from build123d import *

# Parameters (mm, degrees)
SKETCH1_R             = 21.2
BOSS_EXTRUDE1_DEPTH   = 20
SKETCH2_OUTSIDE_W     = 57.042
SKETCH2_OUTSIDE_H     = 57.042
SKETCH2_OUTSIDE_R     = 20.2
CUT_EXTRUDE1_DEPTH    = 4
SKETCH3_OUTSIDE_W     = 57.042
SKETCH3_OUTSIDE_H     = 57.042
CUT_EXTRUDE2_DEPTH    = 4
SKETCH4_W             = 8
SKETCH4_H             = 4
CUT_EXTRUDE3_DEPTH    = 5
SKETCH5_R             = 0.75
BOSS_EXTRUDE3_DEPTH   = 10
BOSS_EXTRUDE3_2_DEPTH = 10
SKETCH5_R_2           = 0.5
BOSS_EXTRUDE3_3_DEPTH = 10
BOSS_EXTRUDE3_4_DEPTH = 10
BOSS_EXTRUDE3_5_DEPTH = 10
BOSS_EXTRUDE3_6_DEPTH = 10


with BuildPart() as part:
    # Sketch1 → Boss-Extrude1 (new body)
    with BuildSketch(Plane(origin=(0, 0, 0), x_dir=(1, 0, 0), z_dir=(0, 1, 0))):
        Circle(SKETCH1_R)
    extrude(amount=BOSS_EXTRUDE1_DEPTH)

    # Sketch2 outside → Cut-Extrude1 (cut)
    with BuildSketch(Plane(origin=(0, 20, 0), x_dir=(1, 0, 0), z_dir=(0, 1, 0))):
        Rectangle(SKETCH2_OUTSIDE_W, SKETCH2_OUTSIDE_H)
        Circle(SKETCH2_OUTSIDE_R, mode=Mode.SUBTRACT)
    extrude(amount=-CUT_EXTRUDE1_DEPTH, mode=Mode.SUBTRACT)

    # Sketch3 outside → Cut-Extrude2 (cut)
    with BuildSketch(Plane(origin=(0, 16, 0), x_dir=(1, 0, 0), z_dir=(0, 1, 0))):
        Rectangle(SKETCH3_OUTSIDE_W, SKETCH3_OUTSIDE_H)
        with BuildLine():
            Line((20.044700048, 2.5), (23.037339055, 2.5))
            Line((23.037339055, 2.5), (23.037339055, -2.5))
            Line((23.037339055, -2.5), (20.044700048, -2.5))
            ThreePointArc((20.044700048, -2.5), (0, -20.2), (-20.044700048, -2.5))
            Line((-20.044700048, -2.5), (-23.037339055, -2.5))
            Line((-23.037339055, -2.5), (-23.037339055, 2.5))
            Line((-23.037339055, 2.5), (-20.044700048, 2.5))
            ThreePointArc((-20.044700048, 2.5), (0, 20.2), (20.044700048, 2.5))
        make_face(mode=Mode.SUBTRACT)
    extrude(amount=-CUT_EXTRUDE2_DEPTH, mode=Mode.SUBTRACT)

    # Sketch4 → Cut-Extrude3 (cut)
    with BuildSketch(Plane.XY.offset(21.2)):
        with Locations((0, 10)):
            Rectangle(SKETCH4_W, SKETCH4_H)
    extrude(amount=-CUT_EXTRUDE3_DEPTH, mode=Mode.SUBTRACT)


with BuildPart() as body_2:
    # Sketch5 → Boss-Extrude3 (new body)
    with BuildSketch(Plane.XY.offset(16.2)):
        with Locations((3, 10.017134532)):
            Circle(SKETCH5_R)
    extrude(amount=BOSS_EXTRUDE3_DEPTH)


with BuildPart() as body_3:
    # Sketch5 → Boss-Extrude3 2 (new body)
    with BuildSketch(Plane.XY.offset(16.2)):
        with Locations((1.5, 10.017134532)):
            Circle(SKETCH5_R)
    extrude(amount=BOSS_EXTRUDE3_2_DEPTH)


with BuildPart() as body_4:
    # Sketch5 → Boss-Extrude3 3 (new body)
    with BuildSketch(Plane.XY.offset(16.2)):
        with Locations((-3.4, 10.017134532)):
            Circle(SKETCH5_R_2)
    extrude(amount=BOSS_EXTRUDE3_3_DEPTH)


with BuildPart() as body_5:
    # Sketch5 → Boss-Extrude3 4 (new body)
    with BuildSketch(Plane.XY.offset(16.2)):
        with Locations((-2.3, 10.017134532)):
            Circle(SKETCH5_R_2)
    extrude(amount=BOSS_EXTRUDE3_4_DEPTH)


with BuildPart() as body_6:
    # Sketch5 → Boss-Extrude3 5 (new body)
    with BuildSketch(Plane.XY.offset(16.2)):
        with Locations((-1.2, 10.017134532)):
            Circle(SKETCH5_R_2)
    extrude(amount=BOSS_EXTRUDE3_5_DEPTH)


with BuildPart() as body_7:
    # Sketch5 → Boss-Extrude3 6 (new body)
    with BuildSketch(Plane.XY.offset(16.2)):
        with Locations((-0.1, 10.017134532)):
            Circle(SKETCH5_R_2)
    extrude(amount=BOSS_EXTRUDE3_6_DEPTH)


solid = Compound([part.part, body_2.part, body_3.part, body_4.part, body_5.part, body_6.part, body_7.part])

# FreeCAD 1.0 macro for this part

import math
import FreeCAD as App
import Part
import Sketcher

V = App.Vector


def add_polygon(sketch, points):
    """Adds a closed chain of lines whose ends are joined by coincident constraints."""
    first, n = sketch.GeometryCount, len(points)
    for a, b in zip(points, points[1:] + points[:1]):
        sketch.addGeometry(Part.LineSegment(App.Vector(*a, 0), App.Vector(*b, 0)), False)
    for i in range(n):
        sketch.addConstraint(Sketcher.Constraint("Coincident", first + i, 2, first + (i + 1) % n, 1))

doc = App.newDocument("Part")
body = doc.addObject("PartDesign::Body", "Body")

# Sketch on XZ plane
sketch1 = body.newObject("Sketcher::SketchObject", "Sketch")
sketch1.AttachmentSupport = (doc.getObject("XZ_Plane"), [""])
sketch1.MapMode = "FlatFace"
sketch1.addGeometry(Part.Circle(V(0, 0, 0), V(0, 0, 1), 21), False)
sketch1.addConstraint([
    Sketcher.Constraint("Coincident", 0, 3, -1, 1),
    Sketcher.Constraint("Diameter", 0, 42.4),
])
pad1 = body.newObject("PartDesign::Pad", "Pad")
pad1.Profile = sketch1
pad1.Length = 20
pad1.Reversed = True

# Sketch on XZ plane
sketch2 = body.newObject("Sketcher::SketchObject", "Sketch001")
sketch2.AttachmentSupport = (doc.getObject("XZ_Plane"), [""])
sketch2.MapMode = "FlatFace"
sketch2.AttachmentOffset = App.Placement(V(0, 0, -20), App.Rotation())
add_polygon(sketch2, [(-29, -29), (-29, 29), (29, 29), (29, -29)])  # lines 0-3
sketch2.addGeometry(Part.Circle(V(0, 0, 0), V(0, 0, 1), 20), False)  # 4
sketch2.addConstraint([
    Sketcher.Constraint("Vertical", 0),
    Sketcher.Constraint("Horizontal", 1),
    Sketcher.Constraint("Vertical", 2),
    Sketcher.Constraint("Horizontal", 3),
    Sketcher.Constraint("Coincident", 4, 3, -1, 1),
    Sketcher.Constraint("Symmetric", 0, 2, 2, 2, -1, 1),
    Sketcher.Constraint("Equal", 3, 0),
    Sketcher.Constraint("Diameter", 4, 40.4),
    Sketcher.Constraint("DistanceX", 1, 1, 1, 2, 57.042),
])
pocket1 = body.newObject("PartDesign::Pocket", "Pocket")
pocket1.Profile = sketch2
pocket1.Length = 4
pocket1.Reversed = True

# Sketch on XZ plane
sketch3 = body.newObject("Sketcher::SketchObject", "Sketch002")
sketch3.AttachmentSupport = (doc.getObject("XZ_Plane"), [""])
sketch3.MapMode = "FlatFace"
sketch3.AttachmentOffset = App.Placement(V(0, 0, -16), App.Rotation())
add_polygon(sketch3, [(-28.5, -28.5), (-28.5, 28.5), (28.5, 28.5), (28.5, -28.5)])  # lines 0-3
sketch3.addGeometry(Part.ArcOfCircle(Part.Circle(V(0, 0, 0), V(0, 0, 1), 20.2), math.radians(-173), math.radians(-7)), False)  # 4
sketch3.addGeometry(Part.LineSegment(V(20, -2.5, 0), V(23, -2.5, 0)), False)  # 5
sketch3.addGeometry(Part.LineSegment(V(23, -2.5, 0), V(23, 2.5, 0)), False)  # 6
sketch3.addGeometry(Part.LineSegment(V(23, 2.5, 0), V(20, 2.5, 0)), False)  # 7
sketch3.addGeometry(Part.ArcOfCircle(Part.Circle(V(0, 0, 0), V(0, 0, 1), 20.2), math.radians(7), math.radians(173)), False)  # 8
sketch3.addGeometry(Part.LineSegment(V(-20, 2.5, 0), V(-23, 2.5, 0)), False)  # 9
sketch3.addGeometry(Part.LineSegment(V(-23, 2.5, 0), V(-23, -2.5, 0)), False)  # 10
sketch3.addGeometry(Part.LineSegment(V(-23, -2.5, 0), V(-20, -2.5, 0)), False)  # 11
sketch3.addConstraint([
    Sketcher.Constraint("Coincident", 4, 2, 5, 1),
    Sketcher.Constraint("Coincident", 5, 2, 6, 1),
    Sketcher.Constraint("Coincident", 6, 2, 7, 1),
    Sketcher.Constraint("Coincident", 7, 2, 8, 1),
    Sketcher.Constraint("Coincident", 8, 2, 9, 1),
    Sketcher.Constraint("Coincident", 9, 2, 10, 1),
    Sketcher.Constraint("Coincident", 10, 2, 11, 1),
    Sketcher.Constraint("Coincident", 11, 2, 4, 1),
    Sketcher.Constraint("Vertical", 0),
    Sketcher.Constraint("Horizontal", 1),
    Sketcher.Constraint("Vertical", 2),
    Sketcher.Constraint("Horizontal", 3),
    Sketcher.Constraint("Horizontal", 5),
    Sketcher.Constraint("Vertical", 6),
    Sketcher.Constraint("Horizontal", 7),
    Sketcher.Constraint("Horizontal", 9),
    Sketcher.Constraint("Vertical", 10),
    Sketcher.Constraint("Horizontal", 11),
    Sketcher.Constraint("Coincident", 4, 3, -1, 1),
    Sketcher.Constraint("Coincident", 8, 3, -1, 1),
    Sketcher.Constraint("Equal", 4, 8),
    Sketcher.Constraint("Symmetric", 0, 2, 2, 2, -1, 1),
    Sketcher.Constraint("Symmetric", 5, 2, 9, 2, -1, 1),
    Sketcher.Constraint("Horizontal", 7, 2, 8, 2),
    Sketcher.Constraint("Horizontal", 5, 2, 10, 2),
    Sketcher.Constraint("Equal", 3, 0),
    Sketcher.Constraint("Radius", 4, 20.2),
    Sketcher.Constraint("DistanceY", 6, 1, 6, 2, 5.0),
    Sketcher.Constraint("DistanceX", 1, 1, 1, 2, 57.042),
    Sketcher.Constraint("DistanceX", 5, 1, 5, 2, 2.992639),
])
pocket2 = body.newObject("PartDesign::Pocket", "Pocket001")
pocket2.Profile = sketch3
pocket2.Length = 4
pocket2.Reversed = True

# Sketch on XY plane
sketch4 = body.newObject("Sketcher::SketchObject", "Sketch003")
sketch4.AttachmentSupport = (doc.getObject("XY_Plane"), [""])
sketch4.MapMode = "FlatFace"
sketch4.AttachmentOffset = App.Placement(V(0, 0, 21.2), App.Rotation())
add_polygon(sketch4, [(-4, 12), (-4, 8), (4, 8), (4, 12)])  # lines 0-3
sketch4.addConstraint([
    Sketcher.Constraint("Vertical", 0),
    Sketcher.Constraint("Horizontal", 1),
    Sketcher.Constraint("Vertical", 2),
    Sketcher.Constraint("Horizontal", 3),
    Sketcher.Constraint("DistanceX", 1, 1, 1, 2, 8.0),
    Sketcher.Constraint("DistanceY", 0, 2, 0, 1, 4.0),
    Sketcher.Constraint("DistanceX", 0, 2, -1, 1, 4.0),
    Sketcher.Constraint("DistanceY", -1, 1, 0, 2, 8.0),
])
pocket3 = body.newObject("PartDesign::Pocket", "Pocket002")
pocket3.Profile = sketch4
pocket3.Length = 5
body2 = doc.addObject("PartDesign::Body", "Body001")

# Sketch on XY plane
sketch5 = body2.newObject("Sketcher::SketchObject", "Sketch004")
sketch5.AttachmentSupport = (doc.getObject("XY_Plane001"), [""])
sketch5.MapMode = "FlatFace"
sketch5.AttachmentOffset = App.Placement(V(0, 0, 16.2), App.Rotation())
sketch5.addGeometry(Part.Circle(V(3, 10, 0), V(0, 0, 1), 0.8), False)
sketch5.addConstraint([
    Sketcher.Constraint("Diameter", 0, 1.5),
    Sketcher.Constraint("DistanceX", -1, 1, 0, 3, 3.0),
    Sketcher.Constraint("DistanceY", -1, 1, 0, 3, 10.017135),
])
pad2 = body2.newObject("PartDesign::Pad", "Pad001")
pad2.Profile = sketch5
pad2.Length = 10
body3 = doc.addObject("PartDesign::Body", "Body002")

# Sketch on XY plane
sketch6 = body3.newObject("Sketcher::SketchObject", "Sketch005")
sketch6.AttachmentSupport = (doc.getObject("XY_Plane002"), [""])
sketch6.MapMode = "FlatFace"
sketch6.AttachmentOffset = App.Placement(V(0, 0, 16.2), App.Rotation())
sketch6.addGeometry(Part.Circle(V(1.5, 10, 0), V(0, 0, 1), 0.8), False)
sketch6.addConstraint([
    Sketcher.Constraint("Diameter", 0, 1.5),
    Sketcher.Constraint("DistanceX", -1, 1, 0, 3, 1.5),
    Sketcher.Constraint("DistanceY", -1, 1, 0, 3, 10.017135),
])
pad3 = body3.newObject("PartDesign::Pad", "Pad002")
pad3.Profile = sketch6
pad3.Length = 10
body4 = doc.addObject("PartDesign::Body", "Body003")

# Sketch on XY plane
sketch7 = body4.newObject("Sketcher::SketchObject", "Sketch006")
sketch7.AttachmentSupport = (doc.getObject("XY_Plane003"), [""])
sketch7.MapMode = "FlatFace"
sketch7.AttachmentOffset = App.Placement(V(0, 0, 16.2), App.Rotation())
sketch7.addGeometry(Part.Circle(V(-3.4, 10, 0), V(0, 0, 1), 0.5), False)
sketch7.addConstraint([
    Sketcher.Constraint("Diameter", 0, 1.0),
    Sketcher.Constraint("DistanceX", 0, 3, -1, 1, 3.4),
    Sketcher.Constraint("DistanceY", -1, 1, 0, 3, 10.017135),
])
pad4 = body4.newObject("PartDesign::Pad", "Pad003")
pad4.Profile = sketch7
pad4.Length = 10
body5 = doc.addObject("PartDesign::Body", "Body004")

# Sketch on XY plane
sketch8 = body5.newObject("Sketcher::SketchObject", "Sketch007")
sketch8.AttachmentSupport = (doc.getObject("XY_Plane004"), [""])
sketch8.MapMode = "FlatFace"
sketch8.AttachmentOffset = App.Placement(V(0, 0, 16.2), App.Rotation())
sketch8.addGeometry(Part.Circle(V(-2.3, 10, 0), V(0, 0, 1), 0.5), False)
sketch8.addConstraint([
    Sketcher.Constraint("Diameter", 0, 1.0),
    Sketcher.Constraint("DistanceX", 0, 3, -1, 1, 2.3),
    Sketcher.Constraint("DistanceY", -1, 1, 0, 3, 10.017135),
])
pad5 = body5.newObject("PartDesign::Pad", "Pad004")
pad5.Profile = sketch8
pad5.Length = 10
body6 = doc.addObject("PartDesign::Body", "Body005")

# Sketch on XY plane
sketch9 = body6.newObject("Sketcher::SketchObject", "Sketch008")
sketch9.AttachmentSupport = (doc.getObject("XY_Plane005"), [""])
sketch9.MapMode = "FlatFace"
sketch9.AttachmentOffset = App.Placement(V(0, 0, 16.2), App.Rotation())
sketch9.addGeometry(Part.Circle(V(-1.2, 10, 0), V(0, 0, 1), 0.5), False)
sketch9.addConstraint([
    Sketcher.Constraint("Diameter", 0, 1.0),
    Sketcher.Constraint("DistanceX", 0, 3, -1, 1, 1.2),
    Sketcher.Constraint("DistanceY", -1, 1, 0, 3, 10.017135),
])
pad6 = body6.newObject("PartDesign::Pad", "Pad005")
pad6.Profile = sketch9
pad6.Length = 10
body7 = doc.addObject("PartDesign::Body", "Body006")

# Sketch on XY plane
sketch10 = body7.newObject("Sketcher::SketchObject", "Sketch009")
sketch10.AttachmentSupport = (doc.getObject("XY_Plane006"), [""])
sketch10.MapMode = "FlatFace"
sketch10.AttachmentOffset = App.Placement(V(0, 0, 16.2), App.Rotation())
sketch10.addGeometry(Part.Circle(V(-0.1, 10, 0), V(0, 0, 1), 0.5), False)
sketch10.addConstraint([
    Sketcher.Constraint("Diameter", 0, 1.0),
    Sketcher.Constraint("DistanceX", 0, 3, -1, 1, 0.1),
    Sketcher.Constraint("DistanceY", -1, 1, 0, 3, 10.017135),
])
pad7 = body7.newObject("PartDesign::Pad", "Pad006")
pad7.Profile = sketch10
pad7.Length = 10

doc.recompute()
